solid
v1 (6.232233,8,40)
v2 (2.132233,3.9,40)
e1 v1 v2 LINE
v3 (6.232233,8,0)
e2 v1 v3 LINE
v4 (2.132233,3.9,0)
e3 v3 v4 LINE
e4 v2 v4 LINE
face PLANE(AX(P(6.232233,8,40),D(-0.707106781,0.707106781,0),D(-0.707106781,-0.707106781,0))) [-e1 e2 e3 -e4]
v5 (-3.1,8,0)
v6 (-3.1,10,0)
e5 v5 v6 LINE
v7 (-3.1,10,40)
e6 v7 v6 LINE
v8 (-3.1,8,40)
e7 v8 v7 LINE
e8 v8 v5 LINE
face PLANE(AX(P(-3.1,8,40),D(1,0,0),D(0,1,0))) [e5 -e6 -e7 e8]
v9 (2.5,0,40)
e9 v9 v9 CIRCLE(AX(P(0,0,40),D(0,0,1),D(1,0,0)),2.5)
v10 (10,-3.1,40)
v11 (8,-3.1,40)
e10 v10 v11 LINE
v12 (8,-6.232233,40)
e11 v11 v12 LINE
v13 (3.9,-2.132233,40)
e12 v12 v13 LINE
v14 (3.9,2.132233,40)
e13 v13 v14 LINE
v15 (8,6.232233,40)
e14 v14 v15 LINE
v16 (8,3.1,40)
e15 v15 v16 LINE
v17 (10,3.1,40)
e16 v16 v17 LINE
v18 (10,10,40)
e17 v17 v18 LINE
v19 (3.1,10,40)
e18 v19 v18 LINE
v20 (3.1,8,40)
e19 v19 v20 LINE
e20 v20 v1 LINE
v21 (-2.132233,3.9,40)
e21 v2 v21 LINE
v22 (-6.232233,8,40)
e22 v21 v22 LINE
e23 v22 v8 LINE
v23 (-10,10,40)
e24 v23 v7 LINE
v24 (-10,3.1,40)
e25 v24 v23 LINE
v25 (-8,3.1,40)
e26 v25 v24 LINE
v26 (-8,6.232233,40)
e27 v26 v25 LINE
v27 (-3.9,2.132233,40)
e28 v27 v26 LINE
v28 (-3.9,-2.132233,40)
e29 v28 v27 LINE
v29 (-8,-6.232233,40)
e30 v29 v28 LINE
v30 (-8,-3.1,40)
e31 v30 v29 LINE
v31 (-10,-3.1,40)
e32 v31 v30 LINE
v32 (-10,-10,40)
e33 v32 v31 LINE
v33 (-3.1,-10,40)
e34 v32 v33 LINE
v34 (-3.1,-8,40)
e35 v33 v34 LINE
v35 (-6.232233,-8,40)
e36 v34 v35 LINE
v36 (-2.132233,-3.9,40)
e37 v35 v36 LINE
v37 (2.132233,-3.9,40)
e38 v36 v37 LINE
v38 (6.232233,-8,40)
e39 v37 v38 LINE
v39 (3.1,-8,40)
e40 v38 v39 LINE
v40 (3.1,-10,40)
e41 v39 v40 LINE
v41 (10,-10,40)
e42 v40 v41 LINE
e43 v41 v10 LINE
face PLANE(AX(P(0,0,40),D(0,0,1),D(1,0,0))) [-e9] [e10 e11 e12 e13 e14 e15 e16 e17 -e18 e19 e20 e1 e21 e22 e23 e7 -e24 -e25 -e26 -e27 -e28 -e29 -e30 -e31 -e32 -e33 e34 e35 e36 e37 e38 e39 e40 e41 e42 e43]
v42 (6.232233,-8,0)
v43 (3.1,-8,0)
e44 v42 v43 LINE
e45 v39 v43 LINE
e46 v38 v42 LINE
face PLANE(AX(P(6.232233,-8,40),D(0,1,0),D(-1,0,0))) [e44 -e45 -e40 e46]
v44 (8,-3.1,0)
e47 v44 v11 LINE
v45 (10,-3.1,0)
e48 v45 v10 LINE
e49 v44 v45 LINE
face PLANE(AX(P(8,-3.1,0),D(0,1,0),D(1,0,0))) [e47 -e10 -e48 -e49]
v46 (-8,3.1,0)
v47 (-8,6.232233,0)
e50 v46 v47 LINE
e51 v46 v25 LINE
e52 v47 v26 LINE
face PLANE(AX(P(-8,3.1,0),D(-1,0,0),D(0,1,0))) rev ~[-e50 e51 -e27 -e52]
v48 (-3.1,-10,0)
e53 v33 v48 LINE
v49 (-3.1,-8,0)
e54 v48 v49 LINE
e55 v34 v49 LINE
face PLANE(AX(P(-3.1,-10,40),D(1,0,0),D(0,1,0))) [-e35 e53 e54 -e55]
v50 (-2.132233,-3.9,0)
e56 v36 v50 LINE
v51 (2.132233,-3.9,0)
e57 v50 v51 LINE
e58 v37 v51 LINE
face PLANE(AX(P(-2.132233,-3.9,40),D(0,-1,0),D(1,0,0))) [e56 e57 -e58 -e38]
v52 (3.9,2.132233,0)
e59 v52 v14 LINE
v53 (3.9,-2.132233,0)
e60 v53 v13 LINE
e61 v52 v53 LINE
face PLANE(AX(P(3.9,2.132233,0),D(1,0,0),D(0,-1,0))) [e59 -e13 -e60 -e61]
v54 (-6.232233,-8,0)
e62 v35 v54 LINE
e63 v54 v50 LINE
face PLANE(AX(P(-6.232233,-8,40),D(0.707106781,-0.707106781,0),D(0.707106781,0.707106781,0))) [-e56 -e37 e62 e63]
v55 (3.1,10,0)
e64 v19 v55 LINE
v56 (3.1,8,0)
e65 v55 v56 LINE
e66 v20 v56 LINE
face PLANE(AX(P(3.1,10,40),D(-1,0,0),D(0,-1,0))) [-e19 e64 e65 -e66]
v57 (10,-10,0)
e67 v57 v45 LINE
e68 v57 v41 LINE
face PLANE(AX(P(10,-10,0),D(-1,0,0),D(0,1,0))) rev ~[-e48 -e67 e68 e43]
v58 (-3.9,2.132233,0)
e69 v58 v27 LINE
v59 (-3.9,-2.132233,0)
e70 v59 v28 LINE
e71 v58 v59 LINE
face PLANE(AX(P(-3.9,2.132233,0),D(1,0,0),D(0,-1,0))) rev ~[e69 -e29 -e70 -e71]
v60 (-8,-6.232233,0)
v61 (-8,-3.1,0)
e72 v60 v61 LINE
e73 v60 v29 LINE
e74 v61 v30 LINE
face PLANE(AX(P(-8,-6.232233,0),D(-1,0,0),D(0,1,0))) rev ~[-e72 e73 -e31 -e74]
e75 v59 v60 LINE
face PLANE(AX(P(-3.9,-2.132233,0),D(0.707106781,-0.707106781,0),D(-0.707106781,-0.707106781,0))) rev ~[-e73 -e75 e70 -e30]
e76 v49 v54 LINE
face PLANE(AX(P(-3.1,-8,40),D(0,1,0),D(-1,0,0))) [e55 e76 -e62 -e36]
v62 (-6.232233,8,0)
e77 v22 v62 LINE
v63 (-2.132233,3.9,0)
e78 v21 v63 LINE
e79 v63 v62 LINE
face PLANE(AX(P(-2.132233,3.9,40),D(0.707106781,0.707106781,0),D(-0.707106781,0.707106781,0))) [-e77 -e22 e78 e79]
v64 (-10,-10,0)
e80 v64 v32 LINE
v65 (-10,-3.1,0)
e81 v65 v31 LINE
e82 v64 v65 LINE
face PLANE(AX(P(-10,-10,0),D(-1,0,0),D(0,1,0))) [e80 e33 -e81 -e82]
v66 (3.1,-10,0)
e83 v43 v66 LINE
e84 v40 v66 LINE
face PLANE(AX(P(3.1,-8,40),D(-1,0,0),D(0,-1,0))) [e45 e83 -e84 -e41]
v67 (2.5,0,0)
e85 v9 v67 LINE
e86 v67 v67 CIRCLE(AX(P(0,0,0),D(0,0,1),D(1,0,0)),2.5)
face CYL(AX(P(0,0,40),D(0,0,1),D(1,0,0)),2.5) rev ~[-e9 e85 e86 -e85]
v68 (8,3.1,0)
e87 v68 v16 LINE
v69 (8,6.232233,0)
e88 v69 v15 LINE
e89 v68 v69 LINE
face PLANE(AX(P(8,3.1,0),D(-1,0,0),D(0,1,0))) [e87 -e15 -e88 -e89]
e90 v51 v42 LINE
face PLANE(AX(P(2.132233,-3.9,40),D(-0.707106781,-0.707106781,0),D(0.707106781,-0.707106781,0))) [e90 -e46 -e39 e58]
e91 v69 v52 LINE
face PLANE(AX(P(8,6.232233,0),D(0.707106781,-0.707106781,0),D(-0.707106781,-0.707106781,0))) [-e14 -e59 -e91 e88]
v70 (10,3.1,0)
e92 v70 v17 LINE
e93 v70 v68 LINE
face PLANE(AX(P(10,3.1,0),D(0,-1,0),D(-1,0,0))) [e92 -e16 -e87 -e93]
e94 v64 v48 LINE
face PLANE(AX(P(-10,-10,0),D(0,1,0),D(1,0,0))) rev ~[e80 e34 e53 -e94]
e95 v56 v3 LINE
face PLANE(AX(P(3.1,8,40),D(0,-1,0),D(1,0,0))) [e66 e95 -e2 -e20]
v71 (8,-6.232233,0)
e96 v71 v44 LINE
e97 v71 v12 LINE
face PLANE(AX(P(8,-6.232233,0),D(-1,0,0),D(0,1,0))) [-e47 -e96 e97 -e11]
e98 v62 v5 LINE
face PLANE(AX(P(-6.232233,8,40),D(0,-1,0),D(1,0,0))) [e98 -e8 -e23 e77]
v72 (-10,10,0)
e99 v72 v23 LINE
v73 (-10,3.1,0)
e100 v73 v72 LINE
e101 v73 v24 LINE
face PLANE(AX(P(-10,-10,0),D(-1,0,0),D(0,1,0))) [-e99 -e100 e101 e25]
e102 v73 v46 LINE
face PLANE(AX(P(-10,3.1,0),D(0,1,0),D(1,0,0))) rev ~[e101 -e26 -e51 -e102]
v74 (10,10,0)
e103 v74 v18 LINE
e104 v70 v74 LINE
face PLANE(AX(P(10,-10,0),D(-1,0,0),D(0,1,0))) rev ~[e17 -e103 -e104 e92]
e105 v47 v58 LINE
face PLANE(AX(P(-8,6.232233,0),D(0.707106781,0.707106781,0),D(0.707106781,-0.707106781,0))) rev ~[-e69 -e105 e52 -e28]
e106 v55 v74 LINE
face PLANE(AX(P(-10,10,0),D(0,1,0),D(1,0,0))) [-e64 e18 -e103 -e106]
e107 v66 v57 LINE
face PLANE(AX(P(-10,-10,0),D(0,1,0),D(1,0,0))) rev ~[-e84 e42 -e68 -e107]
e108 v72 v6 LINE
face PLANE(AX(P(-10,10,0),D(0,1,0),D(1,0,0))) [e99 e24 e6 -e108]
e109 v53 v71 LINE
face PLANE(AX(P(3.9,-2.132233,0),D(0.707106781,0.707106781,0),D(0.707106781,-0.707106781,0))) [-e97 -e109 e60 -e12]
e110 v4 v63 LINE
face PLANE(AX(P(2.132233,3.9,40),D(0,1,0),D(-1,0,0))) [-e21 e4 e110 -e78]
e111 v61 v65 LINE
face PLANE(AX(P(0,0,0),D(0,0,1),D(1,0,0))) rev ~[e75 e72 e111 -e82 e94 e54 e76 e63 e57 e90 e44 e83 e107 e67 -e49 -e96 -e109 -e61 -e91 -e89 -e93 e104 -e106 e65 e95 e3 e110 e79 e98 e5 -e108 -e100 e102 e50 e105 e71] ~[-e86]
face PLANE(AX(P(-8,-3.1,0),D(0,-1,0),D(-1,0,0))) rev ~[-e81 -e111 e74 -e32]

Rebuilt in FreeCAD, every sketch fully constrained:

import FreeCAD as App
import Part
import Sketcher

doc = App.newDocument("Part")
body = doc.addObject("PartDesign::Body", "Body")

# Sketch on XY plane
sketch1 = body.newObject("Sketcher::SketchObject", "Sketch")
sketch1.AttachmentSupport = (doc.getObject("XY_Plane"), [""])
sketch1.MapMode = "FlatFace"
sketch1.addGeometry([
    Part.LineSegment(App.Vector(-10, 10, 0), App.Vector(-10, -10, 0)),
    Part.LineSegment(App.Vector(-10, -10, 0), App.Vector(10, -10, 0)),
    Part.LineSegment(App.Vector(10, -10, 0), App.Vector(10, 10, 0)),
    Part.LineSegment(App.Vector(10, 10, 0), App.Vector(-10, 10, 0)),
], False)
sketch1.addConstraint([
    Sketcher.Constraint("Coincident", 0, 2, 1, 1),
    Sketcher.Constraint("Coincident", 1, 2, 2, 1),
    Sketcher.Constraint("Coincident", 2, 2, 3, 1),
    Sketcher.Constraint("Coincident", 3, 2, 0, 1),
    Sketcher.Constraint("Vertical", 0),
    Sketcher.Constraint("Horizontal", 1),
    Sketcher.Constraint("Vertical", 2),
    Sketcher.Constraint("Horizontal", 3),
    Sketcher.Constraint("Symmetric", 0, 2, 2, 2, -1, 1),
    Sketcher.Constraint("Equal", 3, 0),
    Sketcher.Constraint("DistanceX", 1, 1, 1, 2, 20.0),
])
pad1 = body.newObject("PartDesign::Pad", "Pad")
pad1.Profile = sketch1
pad1.Length = 40

# Sketch on XY plane
sketch2 = body.newObject("Sketcher::SketchObject", "Sketch001")
sketch2.AttachmentSupport = (doc.getObject("XY_Plane"), [""])
sketch2.MapMode = "FlatFace"
sketch2.AttachmentOffset = App.Placement(App.Vector(0, 0, 40), App.Rotation())
sketch2.addGeometry([
    Part.Circle(App.Vector(0, 0, 0), App.Vector(0, 0, 1), 2.5),  # 0
    Part.LineSegment(App.Vector(3.1, 10, 0), App.Vector(-3.1, 10, 0)),  # 1
    Part.LineSegment(App.Vector(-3.1, 10, 0), App.Vector(-3.1, 8, 0)),  # 2
    Part.LineSegment(App.Vector(-3.1, 8, 0), App.Vector(-6.232233, 8, 0)),  # 3
    Part.LineSegment(App.Vector(-6.232233, 8, 0), App.Vector(-2.132233, 3.9, 0)),  # 4
    Part.LineSegment(App.Vector(-2.132233, 3.9, 0), App.Vector(2.132233, 3.9, 0)),  # 5
    Part.LineSegment(App.Vector(2.132233, 3.9, 0), App.Vector(6.232233, 8, 0)),  # 6
    Part.LineSegment(App.Vector(6.232233, 8, 0), App.Vector(3.1, 8, 0)),  # 7
    Part.LineSegment(App.Vector(3.1, 8, 0), App.Vector(3.1, 10, 0)),  # 8
    Part.LineSegment(App.Vector(-6.232233, -8, 0), App.Vector(-3.1, -8, 0)),  # 9
    Part.LineSegment(App.Vector(-3.1, -8, 0), App.Vector(-3.1, -10, 0)),  # 10
    Part.LineSegment(App.Vector(-3.1, -10, 0), App.Vector(3.1, -10, 0)),  # 11
    Part.LineSegment(App.Vector(3.1, -10, 0), App.Vector(3.1, -8, 0)),  # 12
    Part.LineSegment(App.Vector(3.1, -8, 0), App.Vector(6.232233, -8, 0)),  # 13
    Part.LineSegment(App.Vector(6.232233, -8, 0), App.Vector(2.132233, -3.9, 0)),  # 14
    Part.LineSegment(App.Vector(2.132233, -3.9, 0), App.Vector(-2.132233, -3.9, 0)),  # 15
    Part.LineSegment(App.Vector(-2.132233, -3.9, 0), App.Vector(-6.232233, -8, 0)),  # 16
], False)
sketch2.addConstraint([
    Sketcher.Constraint("Coincident", 1, 2, 2, 1),
    Sketcher.Constraint("Coincident", 2, 2, 3, 1),
    Sketcher.Constraint("Coincident", 3, 2, 4, 1),
    Sketcher.Constraint("Coincident", 4, 2, 5, 1),
    Sketcher.Constraint("Coincident", 5, 2, 6, 1),
    Sketcher.Constraint("Coincident", 6, 2, 7, 1),
    Sketcher.Constraint("Coincident", 7, 2, 8, 1),
    Sketcher.Constraint("Coincident", 8, 2, 1, 1),
    Sketcher.Constraint("Coincident", 9, 2, 10, 1),
    Sketcher.Constraint("Coincident", 10, 2, 11, 1),
    Sketcher.Constraint("Coincident", 11, 2, 12, 1),
    Sketcher.Constraint("Coincident", 12, 2, 13, 1),
    Sketcher.Constraint("Coincident", 13, 2, 14, 1),
    Sketcher.Constraint("Coincident", 14, 2, 15, 1),
    Sketcher.Constraint("Coincident", 15, 2, 16, 1),
    Sketcher.Constraint("Coincident", 16, 2, 9, 1),
    Sketcher.Constraint("Horizontal", 1),
    Sketcher.Constraint("Vertical", 2),
    Sketcher.Constraint("Horizontal", 3),
    Sketcher.Constraint("Horizontal", 5),
    Sketcher.Constraint("Horizontal", 7),
    Sketcher.Constraint("Vertical", 8),
    Sketcher.Constraint("Horizontal", 9),
    Sketcher.Constraint("Vertical", 10),
    Sketcher.Constraint("Horizontal", 11),
    Sketcher.Constraint("Vertical", 12),
    Sketcher.Constraint("Horizontal", 13),
    Sketcher.Constraint("Horizontal", 15),
    Sketcher.Constraint("Coincident", 0, 3, -1, 1),
    Sketcher.Constraint("Symmetric", 7, 2, 9, 2, -1, 1),
    Sketcher.Constraint("Symmetric", 1, 2, 11, 2, -1, 1),
    Sketcher.Constraint("Symmetric", 3, 2, 13, 2, -1, 1),
    Sketcher.Constraint("Symmetric", 4, 2, 14, 2, -1, 1),
    Sketcher.Constraint("Symmetric", 3, 2, 6, 2, -2),
    Sketcher.Constraint("Perpendicular", 4, 6),
    Sketcher.Constraint("Perpendicular", 14, 16),
    Sketcher.Constraint("Vertical", 2, 2, 9, 2),
    Sketcher.Constraint("Vertical", 5, 2, 14, 2),
    Sketcher.Constraint("Vertical", 4, 2, 15, 2),
    Sketcher.Constraint("Diameter", 0, 5.0),
    Sketcher.Constraint("DistanceY", 2, 2, 2, 1, 2.0),
    Sketcher.Constraint("DistanceX", 1, 2, 1, 1, 6.2),
    Sketcher.Constraint("DistanceY", -1, 1, 1, 2, 10.0),
    Sketcher.Constraint("DistanceY", -1, 1, 4, 2, 3.9),
    Sketcher.Constraint("DistanceX", 3, 2, 3, 1, 3.132233),
])
pocket1 = body.newObject("PartDesign::Pocket", "Pocket")
pocket1.Profile = sketch2
pocket1.Type = "ThroughAll"

# Sketch on XY plane
sketch3 = body.newObject("Sketcher::SketchObject", "Sketch002")
sketch3.AttachmentSupport = (doc.getObject("XY_Plane"), [""])
sketch3.MapMode = "FlatFace"
sketch3.addGeometry([
    Part.LineSegment(App.Vector(-10, 3.1, 0), App.Vector(-8, 3.1, 0)),  # 0
    Part.LineSegment(App.Vector(-8, 3.1, 0), App.Vector(-8, 6.232233, 0)),  # 1
    Part.LineSegment(App.Vector(-8, 6.232233, 0), App.Vector(-3.9, 2.132233, 0)),  # 2
    Part.LineSegment(App.Vector(-3.9, 2.132233, 0), App.Vector(-3.9, -2.132233, 0)),  # 3
    Part.LineSegment(App.Vector(-3.9, -2.132233, 0), App.Vector(-8, -6.232233, 0)),  # 4
    Part.LineSegment(App.Vector(-8, -6.232233, 0), App.Vector(-8, -3.1, 0)),  # 5
    Part.LineSegment(App.Vector(-8, -3.1, 0), App.Vector(-10, -3.1, 0)),  # 6
    Part.LineSegment(App.Vector(-10, -3.1, 0), App.Vector(-10, 3.1, 0)),  # 7
    Part.LineSegment(App.Vector(3.9, -2.132233, 0), App.Vector(3.9, 2.132233, 0)),  # 8
    Part.LineSegment(App.Vector(3.9, 2.132233, 0), App.Vector(8, 6.232233, 0)),  # 9
    Part.LineSegment(App.Vector(8, 6.232233, 0), App.Vector(8, 3.1, 0)),  # 10
    Part.LineSegment(App.Vector(8, 3.1, 0), App.Vector(10, 3.1, 0)),  # 11
    Part.LineSegment(App.Vector(10, 3.1, 0), App.Vector(10, -3.1, 0)),  # 12
    Part.LineSegment(App.Vector(10, -3.1, 0), App.Vector(8, -3.1, 0)),  # 13
    Part.LineSegment(App.Vector(8, -3.1, 0), App.Vector(8, -6.232233, 0)),  # 14
    Part.LineSegment(App.Vector(8, -6.232233, 0), App.Vector(3.9, -2.132233, 0)),  # 15
], False)
sketch3.addConstraint([
    Sketcher.Constraint("Coincident", 0, 2, 1, 1),
    Sketcher.Constraint("Coincident", 1, 2, 2, 1),
    Sketcher.Constraint("Coincident", 2, 2, 3, 1),
    Sketcher.Constraint("Coincident", 3, 2, 4, 1),
    Sketcher.Constraint("Coincident", 4, 2, 5, 1),
    Sketcher.Constraint("Coincident", 5, 2, 6, 1),
    Sketcher.Constraint("Coincident", 6, 2, 7, 1),
    Sketcher.Constraint("Coincident", 7, 2, 0, 1),
    Sketcher.Constraint("Coincident", 8, 2, 9, 1),
    Sketcher.Constraint("Coincident", 9, 2, 10, 1),
    Sketcher.Constraint("Coincident", 10, 2, 11, 1),
    Sketcher.Constraint("Coincident", 11, 2, 12, 1),
    Sketcher.Constraint("Coincident", 12, 2, 13, 1),
    Sketcher.Constraint("Coincident", 13, 2, 14, 1),
    Sketcher.Constraint("Coincident", 14, 2, 15, 1),
    Sketcher.Constraint("Coincident", 15, 2, 8, 1),
    Sketcher.Constraint("Horizontal", 0),
    Sketcher.Constraint("Vertical", 1),
    Sketcher.Constraint("Vertical", 3),
    Sketcher.Constraint("Vertical", 5),
    Sketcher.Constraint("Horizontal", 6),
    Sketcher.Constraint("Vertical", 7),
    Sketcher.Constraint("Vertical", 8),
    Sketcher.Constraint("Vertical", 10),
    Sketcher.Constraint("Horizontal", 11),
    Sketcher.Constraint("Vertical", 12),
    Sketcher.Constraint("Horizontal", 13),
    Sketcher.Constraint("Vertical", 14),
    Sketcher.Constraint("Symmetric", 3, 2, 8, 2, -1, 1),
    Sketcher.Constraint("Symmetric", 4, 2, 9, 2, -1, 1),
    Sketcher.Constraint("Symmetric", 6, 2, 11, 2, -1, 1),
    Sketcher.Constraint("Symmetric", 0, 2, 13, 2, -1, 1),
    Sketcher.Constraint("Symmetric", 1, 2, 9, 2, -2),
    Sketcher.Constraint("Perpendicular", 2, 4),
    Sketcher.Constraint("Perpendicular", 9, 15),
    Sketcher.Constraint("Horizontal", 2, 2, 8, 2),
    Sketcher.Constraint("Horizontal", 7, 2, 10, 2),
    Sketcher.Constraint("Horizontal", 4, 2, 14, 2),
    Sketcher.Constraint("DistanceX", 0, 1, 0, 2, 2.0),
    Sketcher.Constraint("DistanceY", 7, 1, 7, 2, 6.2),
    Sketcher.Constraint("DistanceX", 0, 2, -1, 1, 8.0),
    Sketcher.Constraint("DistanceX", 2, 2, -1, 1, 3.9),
    Sketcher.Constraint("DistanceY", 1, 1, 1, 2, 3.132233),
])
pocket2 = body.newObject("PartDesign::Pocket", "Pocket001")
pocket2.Profile = sketch3
pocket2.Type = "ThroughAll"
pocket2.Reversed = True

doc.recompute()
